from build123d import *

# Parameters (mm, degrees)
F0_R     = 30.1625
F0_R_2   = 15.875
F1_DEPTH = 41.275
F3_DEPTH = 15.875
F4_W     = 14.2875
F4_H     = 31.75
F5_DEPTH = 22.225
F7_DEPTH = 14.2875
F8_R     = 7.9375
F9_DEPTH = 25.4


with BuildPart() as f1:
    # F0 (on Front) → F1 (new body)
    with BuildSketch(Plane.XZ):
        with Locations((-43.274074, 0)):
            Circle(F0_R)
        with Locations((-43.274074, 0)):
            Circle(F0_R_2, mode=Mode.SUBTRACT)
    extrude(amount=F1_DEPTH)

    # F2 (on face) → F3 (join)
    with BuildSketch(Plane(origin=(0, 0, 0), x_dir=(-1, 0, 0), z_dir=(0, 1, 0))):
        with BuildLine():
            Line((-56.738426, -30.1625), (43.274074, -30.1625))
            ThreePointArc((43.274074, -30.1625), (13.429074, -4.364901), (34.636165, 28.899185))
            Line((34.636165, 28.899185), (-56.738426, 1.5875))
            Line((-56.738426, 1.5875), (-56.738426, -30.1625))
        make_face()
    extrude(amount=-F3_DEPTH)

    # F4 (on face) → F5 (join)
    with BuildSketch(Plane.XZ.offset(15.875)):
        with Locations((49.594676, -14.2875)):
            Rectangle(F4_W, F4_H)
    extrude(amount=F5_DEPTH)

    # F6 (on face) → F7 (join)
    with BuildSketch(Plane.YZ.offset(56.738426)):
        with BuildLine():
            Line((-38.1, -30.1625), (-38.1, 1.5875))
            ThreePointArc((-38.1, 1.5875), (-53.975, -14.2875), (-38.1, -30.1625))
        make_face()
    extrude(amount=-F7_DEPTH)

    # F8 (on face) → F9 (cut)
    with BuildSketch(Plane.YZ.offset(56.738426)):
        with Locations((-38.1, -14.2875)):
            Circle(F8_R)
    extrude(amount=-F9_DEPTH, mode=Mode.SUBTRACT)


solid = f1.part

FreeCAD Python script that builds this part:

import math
import FreeCAD as App
import Part
import Sketcher

V = App.Vector
Q = App.Units.Quantity

doc = App.newDocument("Part")
params = doc.addObject("Spreadsheet::Sheet", "Params")
for row, (alias, value) in enumerate([
    ("sketch1_diameter", "1.25 in"),
    ("sketch1_diameter2", "2.375 in"),
    ("pad1_length", "1.625 in"),
    ("sketch2_radius", "1.1875 in"),
    ("sketch2_height", "1.25 in"),
    ("sketch2_width", "3.9375 in"),
    ("pad2_length", "0.625 in"),
    ("sketch3_height", "1.25 in"),
    ("sketch3_width", "0.5625 in"),
    ("pad3_length", "0.875 in"),
    ("sketch4_radius", "0.625 in"),
    ("pad4_length", "0.5625 in"),
    ("sketch5_diameter", "0.625 in"),
    ("pocket1_length", "1 in"),
], start=1):
    params.set(f"A{row}", alias)
    params.set(f"B{row}", "=" + value)
    params.setAlias(f"B{row}", alias)

body = doc.addObject("PartDesign::Body", "Body")

sketch1 = body.newObject("Sketcher::SketchObject", "Sketch")
sketch1.AttachmentSupport = (doc.getObject("XZ_Plane"), [""])
sketch1.MapMode = "FlatFace"
sketch1.addGeometry(Part.Circle(V(-43, 0, 0), V(0, 0, 1), 30), False)
sketch1.addGeometry(Part.Circle(V(-43, 0, 0), V(0, 0, 1), 16), False)
sketch1.addConstraint(Sketcher.Constraint("Coincident", 1, 3, 0, 3))
sketch1.addConstraint(Sketcher.Constraint("PointOnObject", 0, 3, -1))
sketch1.addConstraint(Sketcher.Constraint("Diameter", 1, Q("1.25 in")))
sketch1.addConstraint(Sketcher.Constraint("Diameter", 0, Q("2.375 in")))
sketch1.addConstraint(Sketcher.Constraint("DistanceX", 0, 3, -1, 1, 43.274074))
sketch1.setExpression("Constraints[2]", "Params.sketch1_diameter")
sketch1.setExpression("Constraints[3]", "Params.sketch1_diameter2")
pad1 = body.newObject("PartDesign::Pad", "Pad")
pad1.Profile = sketch1
pad1.setExpression("Length", "Params.pad1_length")

sketch2 = body.newObject("Sketcher::SketchObject", "Sketch001")
sketch2.AttachmentSupport = (doc.getObject("XZ_Plane"), [""])
sketch2.MapMode = "FlatFace"
sketch2.addGeometry(Part.LineSegment(V(57, -30, 0), V(-43, -30, 0)), False)
sketch2.addGeometry(Part.ArcOfCircle(Part.Circle(V(-43, 0, 0), V(0, 0, 1), 30), math.radians(-90), math.radians(73)), False)
sketch2.addGeometry(Part.LineSegment(V(-35, 29, 0), V(57, 2, 0)), False)
sketch2.addGeometry(Part.LineSegment(V(57, 2, 0), V(57, -30, 0)), False)
sketch2.addConstraint(Sketcher.Constraint("Tangent", 0, 2, 1, 1))
sketch2.addConstraint(Sketcher.Constraint("Tangent", 1, 2, 2, 1))
sketch2.addConstraint(Sketcher.Constraint("Coincident", 2, 2, 3, 1))
sketch2.addConstraint(Sketcher.Constraint("Coincident", 3, 2, 0, 1))
sketch2.addConstraint(Sketcher.Constraint("Horizontal", 0))
sketch2.addConstraint(Sketcher.Constraint("Vertical", 3))
sketch2.addConstraint(Sketcher.Constraint("PointOnObject", 1, 3, -1))
sketch2.addConstraint(Sketcher.Constraint("Radius", 1, Q("1.1875 in")))
sketch2.addConstraint(Sketcher.Constraint("DistanceY", 3, 2, 3, 1, Q("1.25 in")))
sketch2.addConstraint(Sketcher.Constraint("DistanceX", 0, 2, 0, 1, Q("3.9375 in")))
sketch2.addConstraint(Sketcher.Constraint("DistanceX", 1, 3, -1, 1, 43.274074))
sketch2.setExpression("Constraints[7]", "Params.sketch2_radius")
sketch2.setExpression("Constraints[8]", "Params.sketch2_height")
sketch2.setExpression("Constraints[9]", "Params.sketch2_width")
pad2 = body.newObject("PartDesign::Pad", "Pad001")
pad2.Profile = sketch2
pad2.setExpression("Length", "Params.pad2_length")

sketch3 = body.newObject("Sketcher::SketchObject", "Sketch002")
sketch3.AttachmentSupport = (doc.getObject("XZ_Plane"), [""])
sketch3.MapMode = "FlatFace"
sketch3.AttachmentOffset = App.Placement(V(0, 0, 0.625 * 25.4), App.Rotation())
sketch3.addGeometry(Part.LineSegment(V(42, 2, 0), V(42, -30, 0)), False)
sketch3.addGeometry(Part.LineSegment(V(42, -30, 0), V(57, -30, 0)), False)
sketch3.addGeometry(Part.LineSegment(V(57, -30, 0), V(57, 2, 0)), False)
sketch3.addGeometry(Part.LineSegment(V(57, 2, 0), V(42, 2, 0)), False)
sketch3.addConstraint(Sketcher.Constraint("Coincident", 0, 2, 1, 1))
sketch3.addConstraint(Sketcher.Constraint("Coincident", 1, 2, 2, 1))
sketch3.addConstraint(Sketcher.Constraint("Coincident", 2, 2, 3, 1))
sketch3.addConstraint(Sketcher.Constraint("Coincident", 3, 2, 0, 1))
sketch3.addConstraint(Sketcher.Constraint("Vertical", 0))
sketch3.addConstraint(Sketcher.Constraint("Horizontal", 1))
sketch3.addConstraint(Sketcher.Constraint("Vertical", 2))
sketch3.addConstraint(Sketcher.Constraint("Horizontal", 3))
sketch3.addConstraint(Sketcher.Constraint("DistanceY", 0, 2, 0, 1, Q("1.25 in")))
sketch3.addConstraint(Sketcher.Constraint("DistanceX", 1, 1, 1, 2, Q("0.5625 in")))
sketch3.addConstraint(Sketcher.Constraint("DistanceY", 0, 2, -1, 1, Q("1.1875 in")))
sketch3.addConstraint(Sketcher.Constraint("DistanceX", -1, 1, 0, 2, 42.450926))
sketch3.setExpression("Constraints[8]", "Params.sketch3_height")
sketch3.setExpression("Constraints[9]", "Params.sketch3_width")
pad3 = body.newObject("PartDesign::Pad", "Pad002")
pad3.Profile = sketch3
pad3.setExpression("Length", "Params.pad3_length")

sketch4 = body.newObject("Sketcher::SketchObject", "Sketch003")
sketch4.AttachmentSupport = (doc.getObject("YZ_Plane"), [""])
sketch4.MapMode = "FlatFace"
sketch4.AttachmentOffset = App.Placement(V(0, 0, 56.738426), App.Rotation())
sketch4.addGeometry(Part.LineSegment(V(-38, -30, 0), V(-38, 2, 0)), False)
sketch4.addGeometry(Part.ArcOfCircle(Part.Circle(V(-38, -14, 0), V(0, 0, 1), 16), math.radians(90), math.radians(270)), False)
sketch4.addConstraint(Sketcher.Constraint("Coincident", 0, 1, 1, 2))
sketch4.addConstraint(Sketcher.Constraint("Coincident", 1, 1, 0, 2))
sketch4.addConstraint(Sketcher.Constraint("Vertical", 0))
sketch4.addConstraint(Sketcher.Constraint("Vertical", 1, 3, 0, 1))
sketch4.addConstraint(Sketcher.Constraint("Radius", 1, Q("0.625 in")))
sketch4.addConstraint(Sketcher.Constraint("DistanceX", 1, 3, -1, 1, Q("1.5 in")))
sketch4.addConstraint(Sketcher.Constraint("DistanceY", 1, 3, -1, 1, Q("0.5625 in")))
sketch4.setExpression("Constraints[4]", "Params.sketch4_radius")
pad4 = body.newObject("PartDesign::Pad", "Pad003")
pad4.Profile = sketch4
pad4.setExpression("Length", "Params.pad4_length")
pad4.Reversed = True

sketch5 = body.newObject("Sketcher::SketchObject", "Sketch004")
sketch5.AttachmentSupport = (doc.getObject("YZ_Plane"), [""])
sketch5.MapMode = "FlatFace"
sketch5.AttachmentOffset = App.Placement(V(0, 0, 56.738426), App.Rotation())
sketch5.addGeometry(Part.Circle(V(-38, -14, 0), V(0, 0, 1), 8), False)
sketch5.addConstraint(Sketcher.Constraint("Diameter", 0, Q("0.625 in")))
sketch5.addConstraint(Sketcher.Constraint("DistanceX", 0, 3, -1, 1, Q("1.5 in")))
sketch5.addConstraint(Sketcher.Constraint("DistanceY", 0, 3, -1, 1, Q("0.5625 in")))
sketch5.setExpression("Constraints[0]", "Params.sketch5_diameter")
pocket1 = body.newObject("PartDesign::Pocket", "Pocket")
pocket1.Profile = sketch5
pocket1.setExpression("Length", "Params.pocket1_length")

doc.recompute()
